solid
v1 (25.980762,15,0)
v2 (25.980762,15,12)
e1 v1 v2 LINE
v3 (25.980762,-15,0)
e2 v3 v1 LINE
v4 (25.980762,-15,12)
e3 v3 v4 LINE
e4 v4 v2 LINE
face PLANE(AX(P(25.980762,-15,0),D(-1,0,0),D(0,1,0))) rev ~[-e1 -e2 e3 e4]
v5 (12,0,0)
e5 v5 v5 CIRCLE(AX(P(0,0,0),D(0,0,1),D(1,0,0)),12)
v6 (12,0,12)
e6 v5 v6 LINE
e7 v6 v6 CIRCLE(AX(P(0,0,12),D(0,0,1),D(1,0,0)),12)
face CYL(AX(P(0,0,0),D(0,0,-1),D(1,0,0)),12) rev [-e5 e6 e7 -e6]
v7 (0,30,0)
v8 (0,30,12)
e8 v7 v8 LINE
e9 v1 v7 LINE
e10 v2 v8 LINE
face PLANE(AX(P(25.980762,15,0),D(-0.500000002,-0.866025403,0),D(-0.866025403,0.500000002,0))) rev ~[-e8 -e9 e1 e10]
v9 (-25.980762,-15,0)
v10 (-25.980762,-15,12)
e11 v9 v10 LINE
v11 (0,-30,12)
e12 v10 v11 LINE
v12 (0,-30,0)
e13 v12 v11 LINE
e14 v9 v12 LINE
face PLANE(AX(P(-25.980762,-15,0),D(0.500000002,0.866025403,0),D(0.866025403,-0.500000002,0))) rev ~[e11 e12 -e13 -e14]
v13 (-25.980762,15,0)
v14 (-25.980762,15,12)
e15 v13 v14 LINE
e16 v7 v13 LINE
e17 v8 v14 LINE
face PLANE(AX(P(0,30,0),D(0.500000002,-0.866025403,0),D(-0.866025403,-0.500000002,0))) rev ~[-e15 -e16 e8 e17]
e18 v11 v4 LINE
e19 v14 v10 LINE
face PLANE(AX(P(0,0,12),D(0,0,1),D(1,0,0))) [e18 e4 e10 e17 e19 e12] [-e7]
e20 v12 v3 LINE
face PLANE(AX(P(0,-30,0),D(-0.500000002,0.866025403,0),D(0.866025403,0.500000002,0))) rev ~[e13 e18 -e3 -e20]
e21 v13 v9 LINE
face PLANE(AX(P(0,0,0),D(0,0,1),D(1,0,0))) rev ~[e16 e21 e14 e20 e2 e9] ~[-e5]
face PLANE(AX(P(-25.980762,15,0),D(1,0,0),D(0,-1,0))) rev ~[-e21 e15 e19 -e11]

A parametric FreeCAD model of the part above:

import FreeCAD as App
import Part
import Sketcher

V = App.Vector
Q = App.Units.Quantity

doc = App.newDocument("Part")
body = doc.addObject("PartDesign::Body", "Body")

# Sketch on XY plane
sketch1 = doc.addObject("Sketcher::SketchObject", "Sketch")
body.addObject(sketch1)
sketch1.AttachmentSupport = (doc.XY_Plane, [""])
sketch1.MapMode = "FlatFace"
sketch1.addGeometry(Part.LineSegment(V(26, 15, 0), V(0, 30, 0)), False)
sketch1.addGeometry(Part.LineSegment(V(0, 30, 0), V(-26, 15, 0)), False)
sketch1.addGeometry(Part.LineSegment(V(-26, 15, 0), V(-26, -15, 0)), False)
sketch1.addGeometry(Part.LineSegment(V(-26, -15, 0), V(0, -30, 0)), False)
sketch1.addGeometry(Part.LineSegment(V(0, -30, 0), V(26, -15, 0)), False)
sketch1.addGeometry(Part.LineSegment(V(26, -15, 0), V(26, 15, 0)), False)
sketch1.addGeometry(Part.Circle(V(0, 0, 0), V(0, 0, 1), 12), False)
sketch1.addConstraint(Sketcher.Constraint("Coincident", 0, 2, 1, 1))
sketch1.addConstraint(Sketcher.Constraint("Coincident", 1, 2, 2, 1))
sketch1.addConstraint(Sketcher.Constraint("Coincident", 2, 2, 3, 1))
sketch1.addConstraint(Sketcher.Constraint("Coincident", 3, 2, 4, 1))
sketch1.addConstraint(Sketcher.Constraint("Coincident", 4, 2, 5, 1))
sketch1.addConstraint(Sketcher.Constraint("Coincident", 5, 2, 0, 1))
sketch1.addConstraint(Sketcher.Constraint("Vertical", 2))
sketch1.addConstraint(Sketcher.Constraint("Vertical", 5))
sketch1.addConstraint(Sketcher.Constraint("Coincident", 6, 3, -1, 1))
sketch1.addConstraint(Sketcher.Constraint("Symmetric", 0, 2, 3, 2, -1, 1))
sketch1.addConstraint(Sketcher.Constraint("Symmetric", 1, 2, 4, 2, -1, 1))
sketch1.addConstraint(Sketcher.Constraint("PointOnObject", 0, 2, -2))
sketch1.addConstraint(Sketcher.Constraint("Parallel", 0, 3))
sketch1.addConstraint(Sketcher.Constraint("Horizontal", 2, 2, 4, 2))
sketch1.addConstraint(Sketcher.Constraint("Diameter", 6, 24.0))
sketch1.addConstraint(Sketcher.Constraint("DistanceY", 2, 2, 2, 1, 30.0))
sketch1.addConstraint(Sketcher.Constraint("Angle", 0, Q("150 deg")))
sketch1.addConstraint(Sketcher.Constraint("Distance", 0, 30.0))
pad1 = doc.addObject("PartDesign::Pad", "Pad")
body.addObject(pad1)
pad1.Profile = sketch1
pad1.Length = 12

doc.recompute()
